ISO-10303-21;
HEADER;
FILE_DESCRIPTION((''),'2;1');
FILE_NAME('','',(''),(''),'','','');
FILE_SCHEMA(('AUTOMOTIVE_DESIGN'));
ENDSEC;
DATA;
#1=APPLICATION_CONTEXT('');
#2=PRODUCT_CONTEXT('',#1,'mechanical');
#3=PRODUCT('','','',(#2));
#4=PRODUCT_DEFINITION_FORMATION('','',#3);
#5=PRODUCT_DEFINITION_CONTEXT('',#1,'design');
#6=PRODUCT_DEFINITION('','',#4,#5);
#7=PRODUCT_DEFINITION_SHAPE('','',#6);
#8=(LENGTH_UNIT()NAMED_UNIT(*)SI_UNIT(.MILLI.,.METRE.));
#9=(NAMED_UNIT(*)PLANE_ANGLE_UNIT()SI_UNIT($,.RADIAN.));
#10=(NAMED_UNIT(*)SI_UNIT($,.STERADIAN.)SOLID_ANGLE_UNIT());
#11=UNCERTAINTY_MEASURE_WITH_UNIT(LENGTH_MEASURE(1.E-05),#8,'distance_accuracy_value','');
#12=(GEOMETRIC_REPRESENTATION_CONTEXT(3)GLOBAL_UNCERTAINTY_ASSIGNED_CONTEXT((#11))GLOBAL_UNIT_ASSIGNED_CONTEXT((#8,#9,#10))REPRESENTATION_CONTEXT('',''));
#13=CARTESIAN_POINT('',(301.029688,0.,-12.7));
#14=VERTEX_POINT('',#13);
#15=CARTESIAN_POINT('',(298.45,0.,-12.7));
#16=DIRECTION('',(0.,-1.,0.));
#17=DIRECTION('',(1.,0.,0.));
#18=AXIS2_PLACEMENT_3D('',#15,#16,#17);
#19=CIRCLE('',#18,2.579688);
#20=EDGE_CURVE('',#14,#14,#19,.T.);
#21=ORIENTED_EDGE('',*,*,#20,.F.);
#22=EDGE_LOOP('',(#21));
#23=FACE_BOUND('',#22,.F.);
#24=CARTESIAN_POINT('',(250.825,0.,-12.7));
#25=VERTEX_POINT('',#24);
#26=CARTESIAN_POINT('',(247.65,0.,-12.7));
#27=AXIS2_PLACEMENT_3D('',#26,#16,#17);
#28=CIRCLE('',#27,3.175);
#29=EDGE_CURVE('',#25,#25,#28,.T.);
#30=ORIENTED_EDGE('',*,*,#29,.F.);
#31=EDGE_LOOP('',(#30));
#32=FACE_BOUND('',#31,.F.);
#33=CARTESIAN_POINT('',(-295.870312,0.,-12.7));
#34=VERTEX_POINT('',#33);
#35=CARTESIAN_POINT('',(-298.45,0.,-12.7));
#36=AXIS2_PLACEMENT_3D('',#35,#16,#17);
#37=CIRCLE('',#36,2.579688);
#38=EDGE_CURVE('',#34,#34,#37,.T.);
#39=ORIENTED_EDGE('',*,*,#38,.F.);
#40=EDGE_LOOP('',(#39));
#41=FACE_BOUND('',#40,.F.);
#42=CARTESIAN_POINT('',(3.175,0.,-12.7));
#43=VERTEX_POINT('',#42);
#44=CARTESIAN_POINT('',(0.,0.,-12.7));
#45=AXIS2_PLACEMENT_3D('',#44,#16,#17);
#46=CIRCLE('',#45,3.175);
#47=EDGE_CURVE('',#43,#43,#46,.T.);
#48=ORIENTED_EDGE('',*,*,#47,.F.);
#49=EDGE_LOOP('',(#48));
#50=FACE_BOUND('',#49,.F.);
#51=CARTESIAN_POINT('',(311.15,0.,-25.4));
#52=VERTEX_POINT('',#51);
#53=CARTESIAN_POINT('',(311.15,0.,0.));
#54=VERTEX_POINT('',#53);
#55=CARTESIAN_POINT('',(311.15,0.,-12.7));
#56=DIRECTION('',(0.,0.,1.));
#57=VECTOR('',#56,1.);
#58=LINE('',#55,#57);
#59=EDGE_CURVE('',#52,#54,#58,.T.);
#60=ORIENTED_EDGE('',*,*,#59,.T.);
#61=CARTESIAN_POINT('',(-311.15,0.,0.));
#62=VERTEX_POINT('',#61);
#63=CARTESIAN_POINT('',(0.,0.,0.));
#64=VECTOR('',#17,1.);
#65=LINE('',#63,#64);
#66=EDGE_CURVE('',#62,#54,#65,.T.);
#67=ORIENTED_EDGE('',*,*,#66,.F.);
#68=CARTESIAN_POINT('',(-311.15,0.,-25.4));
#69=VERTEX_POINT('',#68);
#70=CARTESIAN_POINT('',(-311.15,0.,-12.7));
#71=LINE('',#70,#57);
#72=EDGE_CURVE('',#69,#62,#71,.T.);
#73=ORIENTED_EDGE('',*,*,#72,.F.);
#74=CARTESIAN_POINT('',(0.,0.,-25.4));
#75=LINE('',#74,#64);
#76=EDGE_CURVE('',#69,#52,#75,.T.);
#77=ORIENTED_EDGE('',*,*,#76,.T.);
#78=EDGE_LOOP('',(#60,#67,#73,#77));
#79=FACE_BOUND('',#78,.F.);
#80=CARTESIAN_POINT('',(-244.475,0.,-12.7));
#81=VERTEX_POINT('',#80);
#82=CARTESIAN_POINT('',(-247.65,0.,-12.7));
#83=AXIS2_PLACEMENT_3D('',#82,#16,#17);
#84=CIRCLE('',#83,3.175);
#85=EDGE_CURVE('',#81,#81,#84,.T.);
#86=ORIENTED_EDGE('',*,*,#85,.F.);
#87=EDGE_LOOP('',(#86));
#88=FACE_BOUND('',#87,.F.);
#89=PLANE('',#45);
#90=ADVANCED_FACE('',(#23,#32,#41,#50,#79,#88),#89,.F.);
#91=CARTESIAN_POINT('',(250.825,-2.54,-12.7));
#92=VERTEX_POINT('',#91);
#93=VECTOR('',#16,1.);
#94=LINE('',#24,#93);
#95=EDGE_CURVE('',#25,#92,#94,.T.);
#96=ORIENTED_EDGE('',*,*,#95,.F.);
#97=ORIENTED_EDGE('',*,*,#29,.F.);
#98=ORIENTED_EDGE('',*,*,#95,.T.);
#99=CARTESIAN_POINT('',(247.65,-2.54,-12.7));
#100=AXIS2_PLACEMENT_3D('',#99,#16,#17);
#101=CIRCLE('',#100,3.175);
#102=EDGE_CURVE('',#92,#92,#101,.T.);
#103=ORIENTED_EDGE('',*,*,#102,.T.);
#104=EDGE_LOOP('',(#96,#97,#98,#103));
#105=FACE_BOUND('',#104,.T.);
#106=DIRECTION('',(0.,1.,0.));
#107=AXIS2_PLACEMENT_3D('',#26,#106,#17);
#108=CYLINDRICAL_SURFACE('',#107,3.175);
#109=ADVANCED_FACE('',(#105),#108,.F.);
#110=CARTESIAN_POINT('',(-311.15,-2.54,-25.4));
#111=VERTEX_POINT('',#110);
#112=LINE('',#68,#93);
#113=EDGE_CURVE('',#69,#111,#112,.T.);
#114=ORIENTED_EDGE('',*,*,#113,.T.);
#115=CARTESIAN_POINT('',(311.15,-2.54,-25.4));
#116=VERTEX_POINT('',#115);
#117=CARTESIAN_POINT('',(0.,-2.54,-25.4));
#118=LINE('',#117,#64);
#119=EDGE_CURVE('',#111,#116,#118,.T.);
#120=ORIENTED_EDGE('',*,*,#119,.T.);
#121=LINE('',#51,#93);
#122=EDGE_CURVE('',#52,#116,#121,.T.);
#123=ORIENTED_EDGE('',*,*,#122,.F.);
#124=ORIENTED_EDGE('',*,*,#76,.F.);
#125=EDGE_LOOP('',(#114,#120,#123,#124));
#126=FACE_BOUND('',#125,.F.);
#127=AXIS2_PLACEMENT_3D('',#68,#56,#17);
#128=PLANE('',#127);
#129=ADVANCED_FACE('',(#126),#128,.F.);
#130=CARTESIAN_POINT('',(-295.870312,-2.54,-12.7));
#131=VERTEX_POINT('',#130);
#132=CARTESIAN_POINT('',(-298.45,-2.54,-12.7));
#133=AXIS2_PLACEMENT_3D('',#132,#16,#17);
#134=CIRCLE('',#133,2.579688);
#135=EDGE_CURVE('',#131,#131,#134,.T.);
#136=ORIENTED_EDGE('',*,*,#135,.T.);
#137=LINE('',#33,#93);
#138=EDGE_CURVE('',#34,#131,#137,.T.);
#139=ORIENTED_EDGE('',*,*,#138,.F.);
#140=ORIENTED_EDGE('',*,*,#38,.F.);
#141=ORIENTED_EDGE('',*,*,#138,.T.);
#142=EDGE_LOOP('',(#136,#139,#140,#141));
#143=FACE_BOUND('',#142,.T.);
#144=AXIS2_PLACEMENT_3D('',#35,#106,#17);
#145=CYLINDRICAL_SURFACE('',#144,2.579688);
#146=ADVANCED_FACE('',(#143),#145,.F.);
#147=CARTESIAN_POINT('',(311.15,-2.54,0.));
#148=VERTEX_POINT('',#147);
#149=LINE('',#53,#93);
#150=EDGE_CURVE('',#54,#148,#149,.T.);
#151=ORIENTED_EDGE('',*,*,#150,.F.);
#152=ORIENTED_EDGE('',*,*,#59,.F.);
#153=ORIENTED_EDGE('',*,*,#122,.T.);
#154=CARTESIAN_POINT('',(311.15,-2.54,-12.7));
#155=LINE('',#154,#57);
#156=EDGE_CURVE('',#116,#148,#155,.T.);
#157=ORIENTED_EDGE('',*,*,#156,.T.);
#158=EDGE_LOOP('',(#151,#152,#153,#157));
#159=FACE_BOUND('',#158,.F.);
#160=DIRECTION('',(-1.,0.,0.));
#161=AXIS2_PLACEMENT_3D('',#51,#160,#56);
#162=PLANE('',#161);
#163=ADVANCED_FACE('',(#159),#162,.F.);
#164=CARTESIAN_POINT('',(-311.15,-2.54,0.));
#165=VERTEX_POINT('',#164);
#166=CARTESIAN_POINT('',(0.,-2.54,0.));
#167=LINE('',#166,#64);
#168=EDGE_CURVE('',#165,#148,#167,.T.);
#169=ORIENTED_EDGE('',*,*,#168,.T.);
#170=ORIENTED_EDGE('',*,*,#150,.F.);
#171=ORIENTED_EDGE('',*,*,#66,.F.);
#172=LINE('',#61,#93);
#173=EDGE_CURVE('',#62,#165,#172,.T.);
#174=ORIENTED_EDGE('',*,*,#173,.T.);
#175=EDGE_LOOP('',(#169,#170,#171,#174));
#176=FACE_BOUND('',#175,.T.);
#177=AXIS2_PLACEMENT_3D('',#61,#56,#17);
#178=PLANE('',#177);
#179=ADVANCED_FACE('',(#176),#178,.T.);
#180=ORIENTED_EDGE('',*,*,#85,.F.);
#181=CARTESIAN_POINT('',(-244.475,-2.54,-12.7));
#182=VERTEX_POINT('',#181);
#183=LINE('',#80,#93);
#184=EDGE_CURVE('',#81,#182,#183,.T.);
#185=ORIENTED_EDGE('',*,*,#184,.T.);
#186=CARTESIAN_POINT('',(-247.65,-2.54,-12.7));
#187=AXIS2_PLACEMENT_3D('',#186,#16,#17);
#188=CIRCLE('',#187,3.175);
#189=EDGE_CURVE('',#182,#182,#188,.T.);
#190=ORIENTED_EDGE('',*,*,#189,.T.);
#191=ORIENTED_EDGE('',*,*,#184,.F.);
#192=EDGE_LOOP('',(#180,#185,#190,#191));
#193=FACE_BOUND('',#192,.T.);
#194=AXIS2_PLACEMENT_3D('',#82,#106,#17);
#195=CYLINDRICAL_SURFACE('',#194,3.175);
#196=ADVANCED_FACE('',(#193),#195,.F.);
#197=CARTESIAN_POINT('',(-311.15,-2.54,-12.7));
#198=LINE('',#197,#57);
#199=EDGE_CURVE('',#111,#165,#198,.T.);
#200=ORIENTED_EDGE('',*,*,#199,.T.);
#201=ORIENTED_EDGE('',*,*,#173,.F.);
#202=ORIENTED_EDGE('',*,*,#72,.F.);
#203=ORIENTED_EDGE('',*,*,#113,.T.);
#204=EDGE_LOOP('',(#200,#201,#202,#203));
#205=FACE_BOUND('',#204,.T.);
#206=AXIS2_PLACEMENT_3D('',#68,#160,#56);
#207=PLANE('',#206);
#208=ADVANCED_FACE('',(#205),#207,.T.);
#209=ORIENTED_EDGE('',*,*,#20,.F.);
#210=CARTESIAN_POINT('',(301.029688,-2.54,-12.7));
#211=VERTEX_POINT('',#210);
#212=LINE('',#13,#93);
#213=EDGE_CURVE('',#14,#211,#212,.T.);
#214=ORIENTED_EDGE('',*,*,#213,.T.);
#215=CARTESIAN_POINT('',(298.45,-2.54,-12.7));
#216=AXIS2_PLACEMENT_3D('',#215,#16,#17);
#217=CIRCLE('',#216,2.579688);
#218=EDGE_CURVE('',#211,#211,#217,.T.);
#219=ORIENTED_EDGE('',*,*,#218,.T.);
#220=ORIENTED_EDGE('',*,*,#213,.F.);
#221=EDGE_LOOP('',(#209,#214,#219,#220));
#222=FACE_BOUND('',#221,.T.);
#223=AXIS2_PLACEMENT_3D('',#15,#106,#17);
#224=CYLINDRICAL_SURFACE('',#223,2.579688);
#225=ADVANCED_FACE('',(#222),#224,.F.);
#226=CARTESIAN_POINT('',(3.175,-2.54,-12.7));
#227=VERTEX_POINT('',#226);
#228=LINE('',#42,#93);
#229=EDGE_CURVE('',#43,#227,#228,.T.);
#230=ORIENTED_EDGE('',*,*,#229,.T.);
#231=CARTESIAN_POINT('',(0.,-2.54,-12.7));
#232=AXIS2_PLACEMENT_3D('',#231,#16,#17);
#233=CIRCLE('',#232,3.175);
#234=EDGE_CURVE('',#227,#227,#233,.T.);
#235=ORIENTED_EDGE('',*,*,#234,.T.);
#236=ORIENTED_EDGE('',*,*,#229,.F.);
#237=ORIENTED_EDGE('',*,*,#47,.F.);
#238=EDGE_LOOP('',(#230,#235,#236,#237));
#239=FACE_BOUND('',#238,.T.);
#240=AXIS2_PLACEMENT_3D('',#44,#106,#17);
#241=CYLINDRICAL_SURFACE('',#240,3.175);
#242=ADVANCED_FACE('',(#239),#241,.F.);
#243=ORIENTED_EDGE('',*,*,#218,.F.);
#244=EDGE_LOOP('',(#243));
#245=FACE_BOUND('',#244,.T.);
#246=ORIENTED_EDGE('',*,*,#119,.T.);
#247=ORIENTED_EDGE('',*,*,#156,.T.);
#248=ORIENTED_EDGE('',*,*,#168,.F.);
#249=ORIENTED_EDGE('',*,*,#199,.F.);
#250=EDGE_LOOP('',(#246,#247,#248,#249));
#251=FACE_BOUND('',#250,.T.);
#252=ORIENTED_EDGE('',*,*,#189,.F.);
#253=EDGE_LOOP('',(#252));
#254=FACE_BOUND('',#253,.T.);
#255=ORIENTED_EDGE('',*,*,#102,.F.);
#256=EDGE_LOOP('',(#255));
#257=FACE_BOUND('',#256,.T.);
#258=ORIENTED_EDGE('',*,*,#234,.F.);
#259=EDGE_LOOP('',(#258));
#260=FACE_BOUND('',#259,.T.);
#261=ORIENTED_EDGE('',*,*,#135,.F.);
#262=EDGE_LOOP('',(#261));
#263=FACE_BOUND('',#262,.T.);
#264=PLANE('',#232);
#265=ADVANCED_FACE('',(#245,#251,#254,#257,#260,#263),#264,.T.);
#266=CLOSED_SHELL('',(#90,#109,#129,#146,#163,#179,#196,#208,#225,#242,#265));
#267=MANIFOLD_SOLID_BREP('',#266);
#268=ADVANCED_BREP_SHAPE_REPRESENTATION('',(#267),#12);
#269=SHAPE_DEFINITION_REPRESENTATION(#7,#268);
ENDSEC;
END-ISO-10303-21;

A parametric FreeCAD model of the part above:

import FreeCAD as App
import Part
import Sketcher

V = App.Vector
Q = App.Units.Quantity

doc = App.newDocument("Part")
body = doc.addObject("PartDesign::Body", "Body")

# Sketch on XZ plane
sketch1 = body.newObject("Sketcher::SketchObject", "Sketch")
sketch1.AttachmentSupport = (doc.getObject("XZ_Plane"), [""])
sketch1.MapMode = "FlatFace"
sketch1.addGeometry([
    Part.LineSegment(V(-311.15, 0, 0), V(-311.15, -25.4, 0)),  # 0
    Part.LineSegment(V(-311.15, -25.4, 0), V(311.15, -25.4, 0)),  # 1
    Part.LineSegment(V(311.15, -25.4, 0), V(311.15, 0, 0)),  # 2
    Part.LineSegment(V(311.15, 0, 0), V(-311.15, 0, 0)),  # 3
    Part.Circle(V(-298.45, -12.7, 0), V(0, 0, 1), 2.579688),  # 4
    Part.Circle(V(-247.65, -12.7, 0), V(0, 0, 1), 3.175),  # 5
    Part.Circle(V(0, -12.7, 0), V(0, 0, 1), 3.175),  # 6
    Part.Circle(V(247.65, -12.7, 0), V(0, 0, 1), 3.175),  # 7
    Part.Circle(V(298.45, -12.7, 0), V(0, 0, 1), 2.579688),  # 8
], False)
sketch1.addConstraint([
    Sketcher.Constraint("Coincident", 0, 2, 1, 1),
    Sketcher.Constraint("Coincident", 1, 2, 2, 1),
    Sketcher.Constraint("Coincident", 2, 2, 3, 1),
    Sketcher.Constraint("Coincident", 3, 2, 0, 1),
    Sketcher.Constraint("Vertical", 0),
    Sketcher.Constraint("Horizontal", 1),
    Sketcher.Constraint("Vertical", 2),
    Sketcher.Constraint("Horizontal", 3),
    Sketcher.Constraint("Equal", 5, 6),
    Sketcher.Constraint("Equal", 6, 7),
    Sketcher.Constraint("Equal", 4, 8),
    Sketcher.Constraint("Symmetric", 2, 2, 3, 2, -1, 1),
    Sketcher.Constraint("Symmetric", 5, 3, 7, 3, -2),
    Sketcher.Constraint("Symmetric", 4, 3, 8, 3, -2),
    Sketcher.Constraint("PointOnObject", 6, 3, -2),
    Sketcher.Constraint("Horizontal", 4, 3, 5, 3),
    Sketcher.Constraint("Horizontal", 5, 3, 6, 3),
    Sketcher.Constraint("Diameter", 5, Q("0.25 in")),
    Sketcher.Constraint("DistanceY", 0, 2, 0, 1, Q("1 in")),
    Sketcher.Constraint("Diameter", 4, Q("0.203125 in")),
    Sketcher.Constraint("DistanceX", 1, 1, 1, 2, Q("24.5 in")),
    Sketcher.Constraint("DistanceX", 4, 3, 5, 3, Q("2 in")),
    Sketcher.Constraint("DistanceX", 0, 2, 7, 3, Q("22 in")),
    Sketcher.Constraint("DistanceY", 4, 3, -1, 1, Q("0.5 in")),
])
pad1 = body.newObject("PartDesign::Pad", "Pad")
pad1.Profile = sketch1
pad1.Length = Q("0.1 in")

doc.recompute()
